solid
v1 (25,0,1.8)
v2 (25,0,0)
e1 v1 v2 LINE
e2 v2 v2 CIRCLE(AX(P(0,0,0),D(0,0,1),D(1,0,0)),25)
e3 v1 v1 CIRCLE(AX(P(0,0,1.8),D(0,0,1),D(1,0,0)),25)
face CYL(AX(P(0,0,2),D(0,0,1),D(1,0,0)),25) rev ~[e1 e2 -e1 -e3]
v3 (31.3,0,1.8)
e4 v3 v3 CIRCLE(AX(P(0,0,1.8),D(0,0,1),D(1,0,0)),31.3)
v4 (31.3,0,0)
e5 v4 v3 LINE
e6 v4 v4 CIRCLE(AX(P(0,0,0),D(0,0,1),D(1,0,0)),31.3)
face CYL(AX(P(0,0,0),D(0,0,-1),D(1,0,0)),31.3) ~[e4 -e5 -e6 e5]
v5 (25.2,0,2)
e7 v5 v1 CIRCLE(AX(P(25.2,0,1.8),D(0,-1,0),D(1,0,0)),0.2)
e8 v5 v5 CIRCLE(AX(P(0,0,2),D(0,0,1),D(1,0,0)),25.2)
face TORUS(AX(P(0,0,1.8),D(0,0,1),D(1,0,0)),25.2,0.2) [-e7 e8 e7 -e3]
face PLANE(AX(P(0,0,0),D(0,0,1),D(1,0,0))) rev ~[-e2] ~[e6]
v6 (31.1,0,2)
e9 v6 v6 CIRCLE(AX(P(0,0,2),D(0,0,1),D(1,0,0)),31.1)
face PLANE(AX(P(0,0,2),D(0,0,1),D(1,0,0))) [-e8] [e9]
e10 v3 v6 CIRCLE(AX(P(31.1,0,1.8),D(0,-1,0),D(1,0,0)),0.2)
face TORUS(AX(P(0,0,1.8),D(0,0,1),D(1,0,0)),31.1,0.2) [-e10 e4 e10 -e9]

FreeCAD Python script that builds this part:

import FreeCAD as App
import Part
import Sketcher
from FreeCAD import Vector
Q = App.Units.Quantity


def edges_at(feature, points):
    """Names of the edges that pass closest to the given points."""
    edges = feature.Shape.Edges
    near = lambda p: min(range(len(edges)), key=lambda i: edges[i].distToShape(Part.Vertex(*p))[0])
    return sorted({f"Edge{near(p) + 1}" for p in points})

doc = App.newDocument("Part")
body = doc.addObject("PartDesign::Body", "Body")

# Sketch on XY plane
sketch1 = body.newObject("Sketcher::SketchObject", "Sketch")
sketch1.AttachmentSupport = (doc.getObject("XY_Plane"), [""])
sketch1.MapMode = "FlatFace"
sketch1.addGeometry(Part.Circle(Vector(0, 0, 0), Vector(0, 0, 1), 31), False)
sketch1.addConstraint(Sketcher.Constraint("Coincident", 0, 3, -1, 1))
sketch1.addConstraint(Sketcher.Constraint("Diameter", 0, Q("62.6 mm")))
pad1 = body.newObject("PartDesign::Pad", "Pad")
pad1.Profile = sketch1
pad1.Length = 2

# Sketch on XY plane
sketch2 = body.newObject("Sketcher::SketchObject", "Sketch001")
sketch2.AttachmentSupport = (doc.getObject("XY_Plane"), [""])
sketch2.MapMode = "FlatFace"
sketch2.AttachmentOffset = App.Placement(Vector(0, 0, 2), App.Rotation())
sketch2.addGeometry(Part.Circle(Vector(0, 0, 0), Vector(0, 0, 1), 25), False)
sketch2.addConstraint(Sketcher.Constraint("Coincident", 0, 3, -1, 1))
sketch2.addConstraint(Sketcher.Constraint("Diameter", 0, Q("50 mm")))
pocket1 = body.newObject("PartDesign::Pocket", "Pocket")
pocket1.Profile = sketch2
pocket1.Length = 2
doc.recompute()

fillet = body.newObject("PartDesign::Fillet", "Fillet")
fillet.Base = (pocket1, edges_at(pocket1, [(-31.3, 0, 2), (-25, 0, 2)]))
fillet.Radius = 0.2

doc.recompute()
